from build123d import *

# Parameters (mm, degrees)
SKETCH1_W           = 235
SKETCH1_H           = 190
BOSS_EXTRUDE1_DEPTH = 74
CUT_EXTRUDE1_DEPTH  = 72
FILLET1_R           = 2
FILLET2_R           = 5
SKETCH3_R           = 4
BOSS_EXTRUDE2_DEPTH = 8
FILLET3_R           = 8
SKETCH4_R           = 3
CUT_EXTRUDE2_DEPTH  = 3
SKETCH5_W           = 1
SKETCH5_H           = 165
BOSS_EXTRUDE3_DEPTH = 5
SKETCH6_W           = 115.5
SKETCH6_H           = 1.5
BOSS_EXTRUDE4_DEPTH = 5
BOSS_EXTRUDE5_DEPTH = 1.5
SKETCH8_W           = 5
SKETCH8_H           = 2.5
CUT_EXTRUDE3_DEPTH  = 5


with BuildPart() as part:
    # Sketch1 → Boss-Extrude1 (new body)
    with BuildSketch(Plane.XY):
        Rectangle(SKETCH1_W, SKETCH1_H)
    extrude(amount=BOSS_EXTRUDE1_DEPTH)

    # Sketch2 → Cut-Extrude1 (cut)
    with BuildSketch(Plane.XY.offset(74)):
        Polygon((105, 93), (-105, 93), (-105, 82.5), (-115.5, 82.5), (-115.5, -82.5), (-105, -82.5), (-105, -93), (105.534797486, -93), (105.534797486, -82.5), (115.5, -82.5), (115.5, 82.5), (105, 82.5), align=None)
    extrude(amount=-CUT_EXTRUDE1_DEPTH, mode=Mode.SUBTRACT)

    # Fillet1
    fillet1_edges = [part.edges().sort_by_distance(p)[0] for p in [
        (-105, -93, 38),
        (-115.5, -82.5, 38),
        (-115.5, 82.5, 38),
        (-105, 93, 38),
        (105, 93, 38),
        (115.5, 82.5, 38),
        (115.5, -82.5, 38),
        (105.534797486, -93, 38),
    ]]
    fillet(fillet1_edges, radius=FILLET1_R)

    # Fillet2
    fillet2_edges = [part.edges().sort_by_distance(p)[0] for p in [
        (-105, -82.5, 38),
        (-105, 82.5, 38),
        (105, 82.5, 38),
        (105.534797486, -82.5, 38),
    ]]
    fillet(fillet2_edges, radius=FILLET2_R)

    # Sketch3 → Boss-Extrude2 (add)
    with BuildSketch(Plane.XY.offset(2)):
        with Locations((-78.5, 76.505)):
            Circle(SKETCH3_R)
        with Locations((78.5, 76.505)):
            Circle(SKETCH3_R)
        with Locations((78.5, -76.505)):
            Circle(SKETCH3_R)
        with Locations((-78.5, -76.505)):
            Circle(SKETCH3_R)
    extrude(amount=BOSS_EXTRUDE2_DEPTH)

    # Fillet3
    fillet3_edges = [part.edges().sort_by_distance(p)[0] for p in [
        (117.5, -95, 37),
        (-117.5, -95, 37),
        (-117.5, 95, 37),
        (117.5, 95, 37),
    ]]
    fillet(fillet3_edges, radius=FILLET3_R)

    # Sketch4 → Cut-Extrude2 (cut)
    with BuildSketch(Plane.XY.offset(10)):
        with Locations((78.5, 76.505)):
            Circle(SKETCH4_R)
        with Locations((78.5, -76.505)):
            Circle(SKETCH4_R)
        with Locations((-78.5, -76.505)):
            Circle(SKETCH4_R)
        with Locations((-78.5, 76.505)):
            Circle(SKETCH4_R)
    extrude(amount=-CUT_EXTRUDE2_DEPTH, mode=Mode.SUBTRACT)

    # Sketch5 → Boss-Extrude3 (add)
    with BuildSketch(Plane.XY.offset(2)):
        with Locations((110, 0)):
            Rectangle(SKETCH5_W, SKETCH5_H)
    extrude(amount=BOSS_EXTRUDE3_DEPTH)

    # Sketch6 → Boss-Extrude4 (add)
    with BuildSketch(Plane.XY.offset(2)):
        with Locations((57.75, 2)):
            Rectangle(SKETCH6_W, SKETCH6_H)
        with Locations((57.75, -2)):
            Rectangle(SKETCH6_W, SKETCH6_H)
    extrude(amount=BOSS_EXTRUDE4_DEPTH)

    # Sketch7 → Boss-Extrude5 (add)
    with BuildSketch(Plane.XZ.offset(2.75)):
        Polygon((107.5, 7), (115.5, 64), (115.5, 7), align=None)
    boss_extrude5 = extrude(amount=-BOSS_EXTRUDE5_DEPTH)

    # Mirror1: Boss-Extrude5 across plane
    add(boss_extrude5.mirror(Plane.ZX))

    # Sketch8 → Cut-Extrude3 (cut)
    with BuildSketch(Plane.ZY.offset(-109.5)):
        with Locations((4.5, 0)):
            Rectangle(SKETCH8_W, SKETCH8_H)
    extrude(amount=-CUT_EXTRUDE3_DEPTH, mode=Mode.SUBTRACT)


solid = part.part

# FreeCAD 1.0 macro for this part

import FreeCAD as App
import Part
import Sketcher
Q = App.Units.Quantity


def edges_at(feature, points):
    """Names of the edges that pass closest to the given points."""
    edges = feature.Shape.Edges
    near = lambda p: min(range(len(edges)), key=lambda i: edges[i].distToShape(Part.Vertex(*p))[0])
    return sorted({f"Edge{near(p) + 1}" for p in points})

doc = App.newDocument("Part")
params = doc.addObject("Spreadsheet::Sheet", "Params")
for row, (alias, value) in enumerate([
    ("sketch1_width", "235 mm"),
    ("sketch1_height", "190 mm"),
    ("pad1_length", "74 mm"),
    ("sketch2_width", "210 mm"),
    ("sketch2_height", "165 mm"),
    ("sketch2_width2", "10.5 mm"),
    ("pocket1_length", "72 mm"),
    ("fillet_radius", "2 mm"),
    ("fillet2_radius", "5 mm"),
    ("sketch3_diameter", "8 mm"),
    ("pad2_length", "8 mm"),
    ("fillet3_radius", "8 mm"),
    ("sketch4_diameter", "6 mm"),
    ("pocket2_length", "3 mm"),
    ("sketch5_width", "1 mm"),
    ("sketch5_height", "165 mm"),
    ("pad3_length", "5 mm"),
    ("sketch6_width", "115.5 mm"),
    ("sketch6_height", "1.5 mm"),
    ("pad4_length", "5 mm"),
    ("sketch7_width", "8 mm"),
    ("sketch7_height", "57 mm"),
    ("pad5_length", "1.5 mm"),
    ("sketch8_height", "5 mm"),
    ("sketch8_width", "2.5 mm"),
    ("pocket3_length", "5 mm"),
], start=1):
    params.set(f"A{row}", alias)
    params.set(f"B{row}", "=" + value)
    params.setAlias(f"B{row}", alias)

body = doc.addObject("PartDesign::Body", "Body")

sketch1 = doc.addObject("Sketcher::SketchObject", "Sketch")
body.addObject(sketch1)
sketch1.AttachmentSupport = (doc.XY_Plane, [""])
sketch1.MapMode = "FlatFace"
sketch1.addGeometry(Part.LineSegment(App.Vector(-118, 95, 0), App.Vector(-118, -95, 0)), False)
sketch1.addGeometry(Part.LineSegment(App.Vector(-118, -95, 0), App.Vector(118, -95, 0)), False)
sketch1.addGeometry(Part.LineSegment(App.Vector(118, -95, 0), App.Vector(118, 95, 0)), False)
sketch1.addGeometry(Part.LineSegment(App.Vector(118, 95, 0), App.Vector(-118, 95, 0)), False)
sketch1.addConstraint(Sketcher.Constraint("Coincident", 0, 2, 1, 1))
sketch1.addConstraint(Sketcher.Constraint("Coincident", 1, 2, 2, 1))
sketch1.addConstraint(Sketcher.Constraint("Coincident", 2, 2, 3, 1))
sketch1.addConstraint(Sketcher.Constraint("Coincident", 3, 2, 0, 1))
sketch1.addConstraint(Sketcher.Constraint("Vertical", 0))
sketch1.addConstraint(Sketcher.Constraint("Horizontal", 1))
sketch1.addConstraint(Sketcher.Constraint("Vertical", 2))
sketch1.addConstraint(Sketcher.Constraint("Horizontal", 3))
sketch1.addConstraint(Sketcher.Constraint("Symmetric", 0, 2, 2, 2, -1, 1))
sketch1.addConstraint(Sketcher.Constraint("DistanceX", 1, 1, 1, 2, Q("235 mm")))
sketch1.addConstraint(Sketcher.Constraint("DistanceY", 0, 2, 0, 1, Q("190 mm")))
sketch1.setExpression("Constraints[9]", "Params.sketch1_width")
sketch1.setExpression("Constraints[10]", "Params.sketch1_height")
pad1 = doc.addObject("PartDesign::Pad", "Pad")
body.addObject(pad1)
pad1.Profile = sketch1
pad1.setExpression("Length", "Params.pad1_length")

sketch2 = doc.addObject("Sketcher::SketchObject", "Sketch001")
body.addObject(sketch2)
sketch2.AttachmentSupport = (doc.XY_Plane, [""])
sketch2.MapMode = "FlatFace"
sketch2.AttachmentOffset = App.Placement(App.Vector(0, 0, 74), App.Rotation())
sketch2.addGeometry(Part.LineSegment(App.Vector(105, 93, 0), App.Vector(-105, 93, 0)), False)
sketch2.addGeometry(Part.LineSegment(App.Vector(-105, 93, 0), App.Vector(-105, 82, 0)), False)
sketch2.addGeometry(Part.LineSegment(App.Vector(-105, 82, 0), App.Vector(-116, 82, 0)), False)
sketch2.addGeometry(Part.LineSegment(App.Vector(-116, 82, 0), App.Vector(-116, -82, 0)), False)
sketch2.addGeometry(Part.LineSegment(App.Vector(-116, -82, 0), App.Vector(-105, -82, 0)), False)
sketch2.addGeometry(Part.LineSegment(App.Vector(-105, -82, 0), App.Vector(-105, -93, 0)), False)
sketch2.addGeometry(Part.LineSegment(App.Vector(-105, -93, 0), App.Vector(106, -93, 0)), False)
sketch2.addGeometry(Part.LineSegment(App.Vector(106, -93, 0), App.Vector(106, -82, 0)), False)
sketch2.addGeometry(Part.LineSegment(App.Vector(106, -82, 0), App.Vector(116, -82, 0)), False)
sketch2.addGeometry(Part.LineSegment(App.Vector(116, -82, 0), App.Vector(116, 82, 0)), False)
sketch2.addGeometry(Part.LineSegment(App.Vector(116, 82, 0), App.Vector(105, 82, 0)), False)
sketch2.addGeometry(Part.LineSegment(App.Vector(105, 82, 0), App.Vector(105, 93, 0)), False)
sketch2.addConstraint(Sketcher.Constraint("Coincident", 0, 2, 1, 1))
sketch2.addConstraint(Sketcher.Constraint("Coincident", 1, 2, 2, 1))
sketch2.addConstraint(Sketcher.Constraint("Coincident", 2, 2, 3, 1))
sketch2.addConstraint(Sketcher.Constraint("Coincident", 3, 2, 4, 1))
sketch2.addConstraint(Sketcher.Constraint("Coincident", 4, 2, 5, 1))
sketch2.addConstraint(Sketcher.Constraint("Coincident", 5, 2, 6, 1))
sketch2.addConstraint(Sketcher.Constraint("Coincident", 6, 2, 7, 1))
sketch2.addConstraint(Sketcher.Constraint("Coincident", 7, 2, 8, 1))
sketch2.addConstraint(Sketcher.Constraint("Coincident", 8, 2, 9, 1))
sketch2.addConstraint(Sketcher.Constraint("Coincident", 9, 2, 10, 1))
sketch2.addConstraint(Sketcher.Constraint("Coincident", 10, 2, 11, 1))
sketch2.addConstraint(Sketcher.Constraint("Coincident", 11, 2, 0, 1))
sketch2.addConstraint(Sketcher.Constraint("Horizontal", 0))
sketch2.addConstraint(Sketcher.Constraint("Vertical", 1))
sketch2.addConstraint(Sketcher.Constraint("Horizontal", 2))
sketch2.addConstraint(Sketcher.Constraint("Vertical", 3))
sketch2.addConstraint(Sketcher.Constraint("Horizontal", 4))
sketch2.addConstraint(Sketcher.Constraint("Vertical", 5))
sketch2.addConstraint(Sketcher.Constraint("Horizontal", 6))
sketch2.addConstraint(Sketcher.Constraint("Vertical", 7))
sketch2.addConstraint(Sketcher.Constraint("Horizontal", 8))
sketch2.addConstraint(Sketcher.Constraint("Vertical", 9))
sketch2.addConstraint(Sketcher.Constraint("Horizontal", 10))
sketch2.addConstraint(Sketcher.Constraint("Vertical", 11))
sketch2.addConstraint(Sketcher.Constraint("Symmetric", 2, 2, 8, 2, -1, 1))
sketch2.addConstraint(Sketcher.Constraint("Symmetric", 4, 2, 10, 2, -1, 1))
sketch2.addConstraint(Sketcher.Constraint("Symmetric", 1, 2, 10, 2, -2))
sketch2.addConstraint(Sketcher.Constraint("Equal", 10, 1))
sketch2.addConstraint(Sketcher.Constraint("Equal", 1, 5))
sketch2.addConstraint(Sketcher.Constraint("DistanceX", 0, 2, 0, 1, Q("210 mm")))
sketch2.addConstraint(Sketcher.Constraint("DistanceY", 3, 2, 3, 1, Q("165 mm")))
sketch2.addConstraint(Sketcher.Constraint("DistanceX", 2, 2, 2, 1, Q("10.5 mm")))
sketch2.addConstraint(Sketcher.Constraint("DistanceX", 6, 1, 6, 2, Q("210.534797 mm")))
sketch2.setExpression("Constraints[29]", "Params.sketch2_width")
sketch2.setExpression("Constraints[30]", "Params.sketch2_height")
sketch2.setExpression("Constraints[31]", "Params.sketch2_width2")
pocket1 = doc.addObject("PartDesign::Pocket", "Pocket")
body.addObject(pocket1)
pocket1.Profile = sketch2
pocket1.setExpression("Length", "Params.pocket1_length")
doc.recompute()

fillet = doc.addObject("PartDesign::Fillet", "Fillet")
body.addObject(fillet)
fillet.Base = (pocket1, edges_at(pocket1, [
    (-105, -93, 38),
    (-115.5, -82.5, 38),
    (-115.5, 82.5, 38),
    (-105, 93, 38),
    (105, 93, 38),
    (115.5, 82.5, 38),
    (115.5, -82.5, 38),
    (105.535, -93, 38),
]))
fillet.setExpression("Radius", "Params.fillet_radius")
doc.recompute()

fillet2 = doc.addObject("PartDesign::Fillet", "Fillet001")
body.addObject(fillet2)
fillet2.Base = (fillet, edges_at(fillet, [
    (-105, -82.5, 38),
    (-105, 82.5, 38),
    (105, 82.5, 38),
    (105.535, -82.5, 38),
]))
fillet2.setExpression("Radius", "Params.fillet2_radius")

sketch3 = doc.addObject("Sketcher::SketchObject", "Sketch002")
body.addObject(sketch3)
sketch3.AttachmentSupport = (doc.XY_Plane, [""])
sketch3.MapMode = "FlatFace"
sketch3.AttachmentOffset = App.Placement(App.Vector(0, 0, 2), App.Rotation())
sketch3.addGeometry(Part.Circle(App.Vector(-78.5, 76.5, 0), App.Vector(0, 0, 1), 4), False)
sketch3.addGeometry(Part.Circle(App.Vector(78.5, 76.5, 0), App.Vector(0, 0, 1), 4), False)
sketch3.addGeometry(Part.Circle(App.Vector(78.5, -76.5, 0), App.Vector(0, 0, 1), 4), False)
sketch3.addGeometry(Part.Circle(App.Vector(-78.5, -76.5, 0), App.Vector(0, 0, 1), 4), False)
sketch3.addConstraint(Sketcher.Constraint("Equal", 0, 1))
sketch3.addConstraint(Sketcher.Constraint("Equal", 1, 2))
sketch3.addConstraint(Sketcher.Constraint("Equal", 2, 3))
sketch3.addConstraint(Sketcher.Constraint("Symmetric", 0, 3, 2, 3, -1, 1))
sketch3.addConstraint(Sketcher.Constraint("Symmetric", 1, 3, 3, 3, -1, 1))
sketch3.addConstraint(Sketcher.Constraint("Symmetric", 0, 3, 1, 3, -2))
sketch3.addConstraint(Sketcher.Constraint("Diameter", 0, Q("8 mm")))
sketch3.addConstraint(Sketcher.Constraint("DistanceX", 0, 3, 1, 3, Q("157 mm")))
sketch3.addConstraint(Sketcher.Constraint("DistanceY", 2, 3, 1, 3, Q("153.01 mm")))
sketch3.setExpression("Constraints[6]", "Params.sketch3_diameter")
pad2 = doc.addObject("PartDesign::Pad", "Pad001")
body.addObject(pad2)
pad2.Profile = sketch3
pad2.setExpression("Length", "Params.pad2_length")
doc.recompute()

fillet3 = doc.addObject("PartDesign::Fillet", "Fillet002")
body.addObject(fillet3)
fillet3.Base = (pad2, edges_at(pad2, [
    (117.5, -95, 37),
    (-117.5, -95, 37),
    (-117.5, 95, 37),
    (117.5, 95, 37),
]))
fillet3.setExpression("Radius", "Params.fillet3_radius")

sketch4 = doc.addObject("Sketcher::SketchObject", "Sketch003")
body.addObject(sketch4)
sketch4.AttachmentSupport = (doc.XY_Plane, [""])
sketch4.MapMode = "FlatFace"
sketch4.AttachmentOffset = App.Placement(App.Vector(0, 0, 10), App.Rotation())
sketch4.addGeometry(Part.Circle(App.Vector(78.5, 76.5, 0), App.Vector(0, 0, 1), 3), False)
sketch4.addGeometry(Part.Circle(App.Vector(78.5, -76.5, 0), App.Vector(0, 0, 1), 3), False)
sketch4.addGeometry(Part.Circle(App.Vector(-78.5, -76.5, 0), App.Vector(0, 0, 1), 3), False)
sketch4.addGeometry(Part.Circle(App.Vector(-78.5, 76.5, 0), App.Vector(0, 0, 1), 3), False)
sketch4.addConstraint(Sketcher.Constraint("Equal", 0, 1))
sketch4.addConstraint(Sketcher.Constraint("Equal", 1, 2))
sketch4.addConstraint(Sketcher.Constraint("Equal", 2, 3))
sketch4.addConstraint(Sketcher.Constraint("Symmetric", 0, 3, 2, 3, -1, 1))
sketch4.addConstraint(Sketcher.Constraint("Symmetric", 1, 3, 3, 3, -1, 1))
sketch4.addConstraint(Sketcher.Constraint("Symmetric", 1, 3, 2, 3, -2))
sketch4.addConstraint(Sketcher.Constraint("Diameter", 0, Q("6 mm")))
sketch4.addConstraint(Sketcher.Constraint("DistanceX", 2, 3, 1, 3, Q("157 mm")))
sketch4.addConstraint(Sketcher.Constraint("DistanceY", 1, 3, 0, 3, Q("153.01 mm")))
sketch4.setExpression("Constraints[6]", "Params.sketch4_diameter")
pocket2 = doc.addObject("PartDesign::Pocket", "Pocket001")
body.addObject(pocket2)
pocket2.Profile = sketch4
pocket2.setExpression("Length", "Params.pocket2_length")

sketch5 = doc.addObject("Sketcher::SketchObject", "Sketch004")
body.addObject(sketch5)
sketch5.AttachmentSupport = (doc.XY_Plane, [""])
sketch5.MapMode = "FlatFace"
sketch5.AttachmentOffset = App.Placement(App.Vector(0, 0, 2), App.Rotation())
sketch5.addGeometry(Part.LineSegment(App.Vector(109.5, 82.5, 0), App.Vector(109.5, -82.5, 0)), False)
sketch5.addGeometry(Part.LineSegment(App.Vector(109.5, -82.5, 0), App.Vector(110.5, -82.5, 0)), False)
sketch5.addGeometry(Part.LineSegment(App.Vector(110.5, -82.5, 0), App.Vector(110.5, 82.5, 0)), False)
sketch5.addGeometry(Part.LineSegment(App.Vector(110.5, 82.5, 0), App.Vector(109.5, 82.5, 0)), False)
sketch5.addConstraint(Sketcher.Constraint("Coincident", 0, 2, 1, 1))
sketch5.addConstraint(Sketcher.Constraint("Coincident", 1, 2, 2, 1))
sketch5.addConstraint(Sketcher.Constraint("Coincident", 2, 2, 3, 1))
sketch5.addConstraint(Sketcher.Constraint("Coincident", 3, 2, 0, 1))
sketch5.addConstraint(Sketcher.Constraint("Vertical", 0))
sketch5.addConstraint(Sketcher.Constraint("Horizontal", 1))
sketch5.addConstraint(Sketcher.Constraint("Vertical", 2))
sketch5.addConstraint(Sketcher.Constraint("Horizontal", 3))
sketch5.addConstraint(Sketcher.Constraint("DistanceX", 1, 1, 1, 2, Q("1 mm")))
sketch5.addConstraint(Sketcher.Constraint("DistanceY", 0, 2, 0, 1, Q("165 mm")))
sketch5.addConstraint(Sketcher.Constraint("DistanceX", -1, 1, 0, 2, Q("109.5 mm")))
sketch5.addConstraint(Sketcher.Constraint("DistanceY", 0, 2, -1, 1, Q("82.5 mm")))
sketch5.setExpression("Constraints[8]", "Params.sketch5_width")
sketch5.setExpression("Constraints[9]", "Params.sketch5_height")
pad3 = doc.addObject("PartDesign::Pad", "Pad002")
body.addObject(pad3)
pad3.Profile = sketch5
pad3.setExpression("Length", "Params.pad3_length")

sketch6 = doc.addObject("Sketcher::SketchObject", "Sketch005")
body.addObject(sketch6)
sketch6.AttachmentSupport = (doc.XY_Plane, [""])
sketch6.MapMode = "FlatFace"
sketch6.AttachmentOffset = App.Placement(App.Vector(0, 0, 2), App.Rotation())
sketch6.addGeometry(Part.LineSegment(App.Vector(0, 2.8, 0), App.Vector(0, 1.2, 0)), False)
sketch6.addGeometry(Part.LineSegment(App.Vector(0, 1.2, 0), App.Vector(115.5, 1.2, 0)), False)
sketch6.addGeometry(Part.LineSegment(App.Vector(115.5, 1.2, 0), App.Vector(115.5, 2.8, 0)), False)
sketch6.addGeometry(Part.LineSegment(App.Vector(115.5, 2.8, 0), App.Vector(0, 2.8, 0)), False)
sketch6.addGeometry(Part.LineSegment(App.Vector(0, -1.2, 0), App.Vector(0, -2.8, 0)), False)
sketch6.addGeometry(Part.LineSegment(App.Vector(0, -2.8, 0), App.Vector(115.5, -2.8, 0)), False)
sketch6.addGeometry(Part.LineSegment(App.Vector(115.5, -2.8, 0), App.Vector(115.5, -1.2, 0)), False)
sketch6.addGeometry(Part.LineSegment(App.Vector(115.5, -1.2, 0), App.Vector(0, -1.2, 0)), False)
sketch6.addConstraint(Sketcher.Constraint("Coincident", 0, 2, 1, 1))
sketch6.addConstraint(Sketcher.Constraint("Coincident", 1, 2, 2, 1))
sketch6.addConstraint(Sketcher.Constraint("Coincident", 2, 2, 3, 1))
sketch6.addConstraint(Sketcher.Constraint("Coincident", 3, 2, 0, 1))
sketch6.addConstraint(Sketcher.Constraint("Coincident", 4, 2, 5, 1))
sketch6.addConstraint(Sketcher.Constraint("Coincident", 5, 2, 6, 1))
sketch6.addConstraint(Sketcher.Constraint("Coincident", 6, 2, 7, 1))
sketch6.addConstraint(Sketcher.Constraint("Coincident", 7, 2, 4, 1))
sketch6.addConstraint(Sketcher.Constraint("Vertical", 0))
sketch6.addConstraint(Sketcher.Constraint("Horizontal", 1))
sketch6.addConstraint(Sketcher.Constraint("Vertical", 2))
sketch6.addConstraint(Sketcher.Constraint("Horizontal", 3))
sketch6.addConstraint(Sketcher.Constraint("Vertical", 4))
sketch6.addConstraint(Sketcher.Constraint("Horizontal", 5))
sketch6.addConstraint(Sketcher.Constraint("Vertical", 6))
sketch6.addConstraint(Sketcher.Constraint("Horizontal", 7))
sketch6.addConstraint(Sketcher.Constraint("Symmetric", 3, 2, 4, 2, -1, 1))
sketch6.addConstraint(Sketcher.Constraint("Symmetric", 1, 2, 6, 2, -1))
sketch6.addConstraint(Sketcher.Constraint("PointOnObject", 0, 2, -2))
sketch6.addConstraint(Sketcher.Constraint("DistanceX", 1, 1, 1, 2, Q("115.5 mm")))
sketch6.addConstraint(Sketcher.Constraint("DistanceY", 0, 2, 0, 1, Q("1.5 mm")))
sketch6.addConstraint(Sketcher.Constraint("DistanceY", 4, 2, 0, 2, Q("4 mm")))
sketch6.setExpression("Constraints[19]", "Params.sketch6_width")
sketch6.setExpression("Constraints[20]", "Params.sketch6_height")
pad4 = doc.addObject("PartDesign::Pad", "Pad003")
body.addObject(pad4)
pad4.Profile = sketch6
pad4.setExpression("Length", "Params.pad4_length")

sketch7 = doc.addObject("Sketcher::SketchObject", "Sketch006")
body.addObject(sketch7)
sketch7.AttachmentSupport = (doc.XZ_Plane, [""])
sketch7.MapMode = "FlatFace"
sketch7.AttachmentOffset = App.Placement(App.Vector(0, 0, 2.75), App.Rotation())
sketch7.addGeometry(Part.LineSegment(App.Vector(116, 64, 0), App.Vector(108, 7, 0)), False)
sketch7.addGeometry(Part.LineSegment(App.Vector(108, 7, 0), App.Vector(116, 7, 0)), False)
sketch7.addGeometry(Part.LineSegment(App.Vector(116, 7, 0), App.Vector(116, 64, 0)), False)
sketch7.addConstraint(Sketcher.Constraint("Coincident", 0, 2, 1, 1))
sketch7.addConstraint(Sketcher.Constraint("Coincident", 1, 2, 2, 1))
sketch7.addConstraint(Sketcher.Constraint("Coincident", 2, 2, 0, 1))
sketch7.addConstraint(Sketcher.Constraint("Horizontal", 1))
sketch7.addConstraint(Sketcher.Constraint("Vertical", 2))
sketch7.addConstraint(Sketcher.Constraint("DistanceX", 1, 1, 1, 2, Q("8 mm")))
sketch7.addConstraint(Sketcher.Constraint("DistanceY", 2, 1, 2, 2, Q("57 mm")))
sketch7.addConstraint(Sketcher.Constraint("DistanceY", -1, 1, 0, 2, Q("7 mm")))
sketch7.addConstraint(Sketcher.Constraint("DistanceX", -1, 1, 0, 2, Q("107.5 mm")))
sketch7.setExpression("Constraints[5]", "Params.sketch7_width")
sketch7.setExpression("Constraints[6]", "Params.sketch7_height")
pad5 = doc.addObject("PartDesign::Pad", "Pad004")
body.addObject(pad5)
pad5.Profile = sketch7
pad5.setExpression("Length", "Params.pad5_length")
pad5.Reversed = True
doc.recompute()

mirrored = doc.addObject("PartDesign::Mirrored", "Mirrored")
body.addObject(mirrored)
mirrored.Originals = [pad5]
mirrored.MirrorPlane = (doc.XZ_Plane, [""])
body.Tip = mirrored

sketch8 = doc.addObject("Sketcher::SketchObject", "Sketch007")
body.addObject(sketch8)
sketch8.AttachmentSupport = (doc.YZ_Plane, [""])
sketch8.MapMode = "FlatFace"
sketch8.AttachmentOffset = App.Placement(App.Vector(0, 0, 109.5), App.Rotation())
sketch8.addGeometry(Part.LineSegment(App.Vector(1.2, 2, 0), App.Vector(-1.2, 2, 0)), False)
sketch8.addGeometry(Part.LineSegment(App.Vector(-1.2, 2, 0), App.Vector(-1.2, 7, 0)), False)
sketch8.addGeometry(Part.LineSegment(App.Vector(-1.2, 7, 0), App.Vector(1.2, 7, 0)), False)
sketch8.addGeometry(Part.LineSegment(App.Vector(1.2, 7, 0), App.Vector(1.2, 2, 0)), False)
sketch8.addConstraint(Sketcher.Constraint("Coincident", 0, 2, 1, 1))
sketch8.addConstraint(Sketcher.Constraint("Coincident", 1, 2, 2, 1))
sketch8.addConstraint(Sketcher.Constraint("Coincident", 2, 2, 3, 1))
sketch8.addConstraint(Sketcher.Constraint("Coincident", 3, 2, 0, 1))
sketch8.addConstraint(Sketcher.Constraint("Horizontal", 0))
sketch8.addConstraint(Sketcher.Constraint("Vertical", 1))
sketch8.addConstraint(Sketcher.Constraint("Horizontal", 2))
sketch8.addConstraint(Sketcher.Constraint("Vertical", 3))
sketch8.addConstraint(Sketcher.Constraint("DistanceY", 1, 1, 1, 2, Q("5 mm")))
sketch8.addConstraint(Sketcher.Constraint("DistanceX", 0, 2, 0, 1, Q("2.5 mm")))
sketch8.addConstraint(Sketcher.Constraint("DistanceY", -1, 1, 0, 2, Q("2 mm")))
sketch8.addConstraint(Sketcher.Constraint("DistanceX", 0, 2, -1, 1, Q("1.25 mm")))
sketch8.setExpression("Constraints[8]", "Params.sketch8_height")
sketch8.setExpression("Constraints[9]", "Params.sketch8_width")
pocket3 = doc.addObject("PartDesign::Pocket", "Pocket002")
body.addObject(pocket3)
pocket3.Profile = sketch8
pocket3.setExpression("Length", "Params.pocket3_length")
pocket3.Reversed = True

doc.recompute()
